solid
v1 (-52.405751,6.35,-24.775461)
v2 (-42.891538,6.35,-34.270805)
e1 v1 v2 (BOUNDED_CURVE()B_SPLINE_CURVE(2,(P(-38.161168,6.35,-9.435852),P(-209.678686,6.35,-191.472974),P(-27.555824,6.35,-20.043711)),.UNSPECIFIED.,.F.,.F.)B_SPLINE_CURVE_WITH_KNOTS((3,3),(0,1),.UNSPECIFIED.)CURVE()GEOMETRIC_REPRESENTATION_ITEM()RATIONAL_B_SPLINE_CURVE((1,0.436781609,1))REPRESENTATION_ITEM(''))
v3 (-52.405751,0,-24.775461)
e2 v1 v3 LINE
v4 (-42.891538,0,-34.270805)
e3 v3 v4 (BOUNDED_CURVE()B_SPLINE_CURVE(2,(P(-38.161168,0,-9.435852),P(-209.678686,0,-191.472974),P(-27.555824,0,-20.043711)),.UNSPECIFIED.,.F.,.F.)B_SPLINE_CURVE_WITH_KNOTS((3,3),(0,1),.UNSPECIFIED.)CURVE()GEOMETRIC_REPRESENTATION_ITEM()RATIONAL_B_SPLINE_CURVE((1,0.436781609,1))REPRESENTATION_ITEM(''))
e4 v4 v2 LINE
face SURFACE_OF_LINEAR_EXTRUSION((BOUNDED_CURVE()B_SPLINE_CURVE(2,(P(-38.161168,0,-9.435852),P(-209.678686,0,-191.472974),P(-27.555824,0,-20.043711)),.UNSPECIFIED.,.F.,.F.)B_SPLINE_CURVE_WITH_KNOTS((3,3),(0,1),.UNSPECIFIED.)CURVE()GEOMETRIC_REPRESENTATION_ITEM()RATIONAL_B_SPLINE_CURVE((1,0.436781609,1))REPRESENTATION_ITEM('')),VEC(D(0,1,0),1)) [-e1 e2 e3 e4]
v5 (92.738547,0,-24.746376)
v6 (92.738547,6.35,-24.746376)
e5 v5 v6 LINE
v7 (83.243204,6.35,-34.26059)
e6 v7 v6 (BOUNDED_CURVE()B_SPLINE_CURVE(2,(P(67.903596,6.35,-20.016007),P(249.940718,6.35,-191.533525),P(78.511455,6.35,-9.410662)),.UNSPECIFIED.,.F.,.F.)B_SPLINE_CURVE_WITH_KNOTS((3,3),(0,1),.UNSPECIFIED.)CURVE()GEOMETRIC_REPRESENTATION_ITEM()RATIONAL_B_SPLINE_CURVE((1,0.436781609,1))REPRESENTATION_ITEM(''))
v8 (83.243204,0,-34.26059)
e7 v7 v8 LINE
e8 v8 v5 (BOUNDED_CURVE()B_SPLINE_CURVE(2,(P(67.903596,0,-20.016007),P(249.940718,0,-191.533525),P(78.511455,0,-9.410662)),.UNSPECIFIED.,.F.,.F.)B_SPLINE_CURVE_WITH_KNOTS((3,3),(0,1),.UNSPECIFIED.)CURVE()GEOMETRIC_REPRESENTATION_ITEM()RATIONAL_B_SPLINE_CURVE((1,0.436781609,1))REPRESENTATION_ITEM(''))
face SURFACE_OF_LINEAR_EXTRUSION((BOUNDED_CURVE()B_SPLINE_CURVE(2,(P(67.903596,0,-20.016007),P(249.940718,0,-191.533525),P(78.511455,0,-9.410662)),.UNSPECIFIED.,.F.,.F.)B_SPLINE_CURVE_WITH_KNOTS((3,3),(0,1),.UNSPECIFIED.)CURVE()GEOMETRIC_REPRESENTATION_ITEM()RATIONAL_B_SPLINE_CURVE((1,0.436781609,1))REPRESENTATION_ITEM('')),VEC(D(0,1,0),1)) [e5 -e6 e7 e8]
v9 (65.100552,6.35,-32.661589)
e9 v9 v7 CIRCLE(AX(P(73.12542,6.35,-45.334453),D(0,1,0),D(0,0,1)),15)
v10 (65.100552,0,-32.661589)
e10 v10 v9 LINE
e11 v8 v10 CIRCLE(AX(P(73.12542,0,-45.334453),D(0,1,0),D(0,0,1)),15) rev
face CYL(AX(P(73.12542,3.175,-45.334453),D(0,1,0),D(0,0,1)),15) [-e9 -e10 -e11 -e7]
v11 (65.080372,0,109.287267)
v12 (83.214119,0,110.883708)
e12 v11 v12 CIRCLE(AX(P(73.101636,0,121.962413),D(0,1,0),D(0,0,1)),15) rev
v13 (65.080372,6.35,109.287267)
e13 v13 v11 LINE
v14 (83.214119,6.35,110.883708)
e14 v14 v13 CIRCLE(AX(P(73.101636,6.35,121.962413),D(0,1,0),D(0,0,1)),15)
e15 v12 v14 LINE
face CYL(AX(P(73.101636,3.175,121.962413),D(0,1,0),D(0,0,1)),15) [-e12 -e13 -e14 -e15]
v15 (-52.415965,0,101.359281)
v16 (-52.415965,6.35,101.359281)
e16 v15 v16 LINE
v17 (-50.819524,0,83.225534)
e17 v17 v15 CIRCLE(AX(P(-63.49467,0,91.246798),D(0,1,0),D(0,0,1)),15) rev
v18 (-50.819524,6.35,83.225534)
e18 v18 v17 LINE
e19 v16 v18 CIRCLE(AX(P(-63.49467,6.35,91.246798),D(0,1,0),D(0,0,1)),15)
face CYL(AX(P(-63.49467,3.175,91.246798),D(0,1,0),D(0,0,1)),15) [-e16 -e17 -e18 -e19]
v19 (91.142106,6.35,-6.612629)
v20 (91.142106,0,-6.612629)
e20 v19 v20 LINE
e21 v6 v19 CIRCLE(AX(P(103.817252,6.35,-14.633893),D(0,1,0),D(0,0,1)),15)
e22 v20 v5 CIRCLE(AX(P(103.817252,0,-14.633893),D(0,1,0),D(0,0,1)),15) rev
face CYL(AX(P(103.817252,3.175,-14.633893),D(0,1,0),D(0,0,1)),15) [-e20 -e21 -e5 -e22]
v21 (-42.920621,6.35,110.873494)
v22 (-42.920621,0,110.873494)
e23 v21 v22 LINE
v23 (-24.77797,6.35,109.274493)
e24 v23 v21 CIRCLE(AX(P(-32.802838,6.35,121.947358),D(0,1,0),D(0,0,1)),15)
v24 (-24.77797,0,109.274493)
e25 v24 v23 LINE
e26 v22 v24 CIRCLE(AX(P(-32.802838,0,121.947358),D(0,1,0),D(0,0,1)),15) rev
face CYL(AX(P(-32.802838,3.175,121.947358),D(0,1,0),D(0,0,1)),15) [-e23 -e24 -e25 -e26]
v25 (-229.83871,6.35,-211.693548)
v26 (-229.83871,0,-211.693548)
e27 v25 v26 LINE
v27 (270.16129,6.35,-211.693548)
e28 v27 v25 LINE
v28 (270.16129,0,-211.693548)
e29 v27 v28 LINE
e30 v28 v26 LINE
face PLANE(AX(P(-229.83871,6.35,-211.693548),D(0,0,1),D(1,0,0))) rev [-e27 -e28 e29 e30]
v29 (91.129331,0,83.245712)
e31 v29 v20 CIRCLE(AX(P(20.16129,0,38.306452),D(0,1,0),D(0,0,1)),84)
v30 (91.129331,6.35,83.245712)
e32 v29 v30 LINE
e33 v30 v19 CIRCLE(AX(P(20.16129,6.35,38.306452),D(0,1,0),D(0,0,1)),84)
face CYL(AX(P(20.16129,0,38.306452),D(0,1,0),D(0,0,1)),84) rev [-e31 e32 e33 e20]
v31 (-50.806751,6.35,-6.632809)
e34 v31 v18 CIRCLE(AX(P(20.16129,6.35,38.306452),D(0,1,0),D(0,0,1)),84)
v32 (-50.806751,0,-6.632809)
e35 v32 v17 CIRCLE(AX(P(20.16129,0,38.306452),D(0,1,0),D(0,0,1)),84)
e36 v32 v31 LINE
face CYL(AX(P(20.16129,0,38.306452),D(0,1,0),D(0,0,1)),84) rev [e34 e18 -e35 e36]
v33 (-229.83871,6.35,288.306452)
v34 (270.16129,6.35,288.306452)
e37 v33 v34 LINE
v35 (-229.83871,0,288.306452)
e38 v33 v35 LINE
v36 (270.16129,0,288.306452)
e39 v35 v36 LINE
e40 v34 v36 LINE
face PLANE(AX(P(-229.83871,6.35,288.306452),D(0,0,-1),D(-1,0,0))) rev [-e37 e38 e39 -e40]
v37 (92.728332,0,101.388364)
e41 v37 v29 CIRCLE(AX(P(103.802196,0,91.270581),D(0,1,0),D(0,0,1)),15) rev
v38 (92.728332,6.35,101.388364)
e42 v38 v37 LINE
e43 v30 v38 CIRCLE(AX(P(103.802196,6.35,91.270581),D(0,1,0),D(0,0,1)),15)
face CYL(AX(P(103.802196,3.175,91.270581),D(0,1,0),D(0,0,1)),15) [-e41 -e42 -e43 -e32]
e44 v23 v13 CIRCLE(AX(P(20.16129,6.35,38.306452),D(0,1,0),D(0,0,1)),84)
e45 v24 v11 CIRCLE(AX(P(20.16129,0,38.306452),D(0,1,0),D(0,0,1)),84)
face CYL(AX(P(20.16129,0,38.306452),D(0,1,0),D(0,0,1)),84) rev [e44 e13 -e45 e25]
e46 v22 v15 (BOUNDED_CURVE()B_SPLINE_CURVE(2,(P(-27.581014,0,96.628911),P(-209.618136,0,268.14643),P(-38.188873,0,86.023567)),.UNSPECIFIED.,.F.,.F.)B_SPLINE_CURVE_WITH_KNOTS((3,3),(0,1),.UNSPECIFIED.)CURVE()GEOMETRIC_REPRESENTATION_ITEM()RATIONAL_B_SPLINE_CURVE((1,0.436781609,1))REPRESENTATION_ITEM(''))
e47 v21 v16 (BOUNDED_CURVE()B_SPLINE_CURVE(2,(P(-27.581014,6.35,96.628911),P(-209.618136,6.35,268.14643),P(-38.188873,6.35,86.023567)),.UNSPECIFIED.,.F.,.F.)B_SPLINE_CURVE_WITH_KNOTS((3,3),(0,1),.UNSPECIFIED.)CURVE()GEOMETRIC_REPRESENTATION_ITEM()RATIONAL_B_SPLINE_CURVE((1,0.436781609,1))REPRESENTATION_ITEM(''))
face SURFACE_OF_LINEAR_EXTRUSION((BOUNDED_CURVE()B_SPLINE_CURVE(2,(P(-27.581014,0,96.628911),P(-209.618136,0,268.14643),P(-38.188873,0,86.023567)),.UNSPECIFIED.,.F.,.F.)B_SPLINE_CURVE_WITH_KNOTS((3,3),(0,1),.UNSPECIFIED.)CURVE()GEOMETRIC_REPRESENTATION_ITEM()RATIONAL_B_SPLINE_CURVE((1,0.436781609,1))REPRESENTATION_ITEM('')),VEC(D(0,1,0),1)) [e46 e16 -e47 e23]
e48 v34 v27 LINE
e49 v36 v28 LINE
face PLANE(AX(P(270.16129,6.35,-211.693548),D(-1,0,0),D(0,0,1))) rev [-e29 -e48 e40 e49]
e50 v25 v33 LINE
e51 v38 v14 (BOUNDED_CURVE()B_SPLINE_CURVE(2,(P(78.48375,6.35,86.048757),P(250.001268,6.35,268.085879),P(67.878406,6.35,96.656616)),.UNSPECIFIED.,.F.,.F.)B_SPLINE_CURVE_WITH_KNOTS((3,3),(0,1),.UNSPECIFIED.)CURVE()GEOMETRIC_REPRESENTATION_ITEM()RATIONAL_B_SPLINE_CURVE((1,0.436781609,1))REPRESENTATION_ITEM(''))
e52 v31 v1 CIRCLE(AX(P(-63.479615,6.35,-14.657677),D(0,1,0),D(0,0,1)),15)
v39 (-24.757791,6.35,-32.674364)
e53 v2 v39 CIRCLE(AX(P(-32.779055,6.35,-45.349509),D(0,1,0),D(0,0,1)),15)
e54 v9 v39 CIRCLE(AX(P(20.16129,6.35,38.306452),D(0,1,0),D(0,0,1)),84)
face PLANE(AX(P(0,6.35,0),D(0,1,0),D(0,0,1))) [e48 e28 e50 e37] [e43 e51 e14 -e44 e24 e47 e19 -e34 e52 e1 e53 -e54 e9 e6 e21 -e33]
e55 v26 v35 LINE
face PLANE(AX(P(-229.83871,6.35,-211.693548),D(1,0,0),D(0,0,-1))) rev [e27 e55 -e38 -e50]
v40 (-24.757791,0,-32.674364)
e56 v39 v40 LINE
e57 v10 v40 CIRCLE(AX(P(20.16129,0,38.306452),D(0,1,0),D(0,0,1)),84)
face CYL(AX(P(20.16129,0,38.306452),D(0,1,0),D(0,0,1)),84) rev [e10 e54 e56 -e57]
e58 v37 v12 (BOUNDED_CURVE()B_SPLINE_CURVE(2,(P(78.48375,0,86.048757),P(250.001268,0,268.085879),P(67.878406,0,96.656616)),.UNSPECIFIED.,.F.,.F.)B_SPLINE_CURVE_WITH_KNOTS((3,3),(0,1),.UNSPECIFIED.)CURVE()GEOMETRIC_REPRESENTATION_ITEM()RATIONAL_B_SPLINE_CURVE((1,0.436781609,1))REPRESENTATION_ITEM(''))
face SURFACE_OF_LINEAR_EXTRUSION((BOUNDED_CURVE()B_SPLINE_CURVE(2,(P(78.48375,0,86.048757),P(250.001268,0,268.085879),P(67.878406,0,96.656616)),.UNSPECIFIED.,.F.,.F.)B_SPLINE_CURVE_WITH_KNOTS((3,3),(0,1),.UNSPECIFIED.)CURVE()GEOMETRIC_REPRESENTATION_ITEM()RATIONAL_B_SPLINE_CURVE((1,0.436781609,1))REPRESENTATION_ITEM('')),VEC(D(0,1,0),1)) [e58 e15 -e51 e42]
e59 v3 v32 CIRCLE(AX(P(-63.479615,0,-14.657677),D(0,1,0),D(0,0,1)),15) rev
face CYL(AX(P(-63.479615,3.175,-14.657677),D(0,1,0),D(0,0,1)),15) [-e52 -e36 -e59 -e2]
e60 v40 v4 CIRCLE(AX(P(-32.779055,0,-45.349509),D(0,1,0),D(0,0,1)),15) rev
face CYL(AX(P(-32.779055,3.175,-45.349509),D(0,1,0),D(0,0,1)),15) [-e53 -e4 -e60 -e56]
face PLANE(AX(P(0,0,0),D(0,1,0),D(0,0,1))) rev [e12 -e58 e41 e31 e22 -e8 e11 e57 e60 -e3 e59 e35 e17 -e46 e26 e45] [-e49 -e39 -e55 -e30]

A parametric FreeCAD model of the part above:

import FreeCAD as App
import Part
import Sketcher
from FreeCAD import Vector
Q = App.Units.Quantity


def edges_at(feature, points):
    """Names of the edges that pass closest to the given points."""
    edges = feature.Shape.Edges
    near = lambda p: min(range(len(edges)), key=lambda i: edges[i].distToShape(Part.Vertex(*p))[0])
    return sorted({f"Edge{near(p) + 1}" for p in points})

doc = App.newDocument("Part")
body = doc.addObject("PartDesign::Body", "Body")

sketch1 = body.newObject("Sketcher::SketchObject", "Sketch")
sketch1.AttachmentSupport = (doc.getObject("XZ_Plane"), [""])
sketch1.MapMode = "FlatFace"
sketch1.addGeometry(Part.LineSegment(Vector(-229.83871, -211.693548, 0), Vector(-229.83871, 288.306452, 0)), False)
sketch1.addGeometry(Part.LineSegment(Vector(-229.83871, 288.306452, 0), Vector(270.16129, 288.306452, 0)), False)
sketch1.addGeometry(Part.LineSegment(Vector(270.16129, 288.306452, 0), Vector(270.16129, -211.693548, 0)), False)
sketch1.addGeometry(Part.LineSegment(Vector(270.16129, -211.693548, 0), Vector(-229.83871, -211.693548, 0)), False)
sketch1.addConstraint(Sketcher.Constraint("Coincident", 0, 2, 1, 1))
sketch1.addConstraint(Sketcher.Constraint("Coincident", 1, 2, 2, 1))
sketch1.addConstraint(Sketcher.Constraint("Coincident", 2, 2, 3, 1))
sketch1.addConstraint(Sketcher.Constraint("Coincident", 3, 2, 0, 1))
sketch1.addConstraint(Sketcher.Constraint("Vertical", 0))
sketch1.addConstraint(Sketcher.Constraint("Horizontal", 1))
sketch1.addConstraint(Sketcher.Constraint("Vertical", 2))
sketch1.addConstraint(Sketcher.Constraint("Horizontal", 3))
sketch1.addConstraint(Sketcher.Constraint("Equal", 3, 0))
sketch1.addConstraint(Sketcher.Constraint("DistanceX", 1, 1, 1, 2, Q("500 mm")))
sketch1.addConstraint(Sketcher.Constraint("DistanceX", 0, 2, -1, 1, Q("229.83871 mm")))
sketch1.addConstraint(Sketcher.Constraint("DistanceY", -1, 1, 0, 2, Q("288.306452 mm")))
pad1 = body.newObject("PartDesign::Pad", "Pad")
pad1.Profile = sketch1
pad1.Length = 6.35
pad1.Reversed = True

sketch2 = body.newObject("Sketcher::SketchObject", "Sketch001")
sketch2.AttachmentSupport = (doc.getObject("XZ_Plane"), [""])
sketch2.MapMode = "FlatFace"
sketch2.AttachmentOffset = App.Placement(Vector(0, 0, -6.35), App.Rotation())
sketch2.addGeometry(Part.Circle(Vector(20.16129, 38.306452, 0), Vector(0, 0, 1), 84), False)
sketch2.addConstraint(Sketcher.Constraint("Diameter", 0, Q("168 mm")))
sketch2.addConstraint(Sketcher.Constraint("DistanceX", -1, 1, 0, 3, Q("20.16129 mm")))
sketch2.addConstraint(Sketcher.Constraint("DistanceY", -1, 1, 0, 3, Q("38.306452 mm")))
pocket1 = body.newObject("PartDesign::Pocket", "Pocket")
pocket1.Profile = sketch2
pocket1.Length = 6.35
pocket1.Reversed = True

sketch3 = body.newObject("Sketcher::SketchObject", "Sketch002")
sketch3.AttachmentSupport = (doc.getObject("XZ_Plane"), [""])
sketch3.MapMode = "FlatFace"
sketch3.AttachmentOffset = App.Placement(Vector(0, 0, -6.35), App.Rotation())
sketch3.addGeometry(Part.LineSegment(Vector(-38.161168, -9.435852, 0), Vector(-27.555824, -20.043711, 0)), False)
sketch3.addGeometry(Part.BSplineCurve([Vector(-38.161168, -9.435852, 0), Vector(-209.678686, -191.472974, 0), Vector(-27.555824, -20.043711, 0)], [3, 3], [0, 1], False, 2, [1, 0.436781609, 1], False), False)
sketch3.addGeometry(Part.LineSegment(Vector(-27.581014, 96.628911, 0), Vector(-38.188873, 86.023567, 0)), False)
sketch3.addGeometry(Part.BSplineCurve([Vector(-27.581014, 96.628911, 0), Vector(-209.618136, 268.14643, 0), Vector(-38.188873, 86.023567, 0)], [3, 3], [0, 1], False, 2, [1, 0.436781609, 1], False), False)
sketch3.addGeometry(Part.LineSegment(Vector(78.48375, 86.048757, 0), Vector(67.878406, 96.656616, 0)), False)
sketch3.addGeometry(Part.BSplineCurve([Vector(78.48375, 86.048757, 0), Vector(250.001268, 268.085879, 0), Vector(67.878406, 96.656616, 0)], [3, 3], [0, 1], False, 2, [1, 0.436781609, 1], False), False)
sketch3.addGeometry(Part.LineSegment(Vector(67.903596, -20.016007, 0), Vector(78.511455, -9.410662, 0)), False)
sketch3.addGeometry(Part.BSplineCurve([Vector(67.903596, -20.016007, 0), Vector(249.940718, -191.533525, 0), Vector(78.511455, -9.410662, 0)], [3, 3], [0, 1], False, 2, [1, 0.436781609, 1], False), False)
sketch3.addConstraint(Sketcher.Constraint("Block", 1))
sketch3.addConstraint(Sketcher.Constraint("Block", 3))
sketch3.addConstraint(Sketcher.Constraint("Block", 5))
sketch3.addConstraint(Sketcher.Constraint("Block", 7))
sketch3.addConstraint(Sketcher.Constraint("Coincident", 0, 1, 1, 1))
sketch3.addConstraint(Sketcher.Constraint("Coincident", 1, 2, 0, 2))
sketch3.addConstraint(Sketcher.Constraint("Coincident", 2, 1, 3, 1))
sketch3.addConstraint(Sketcher.Constraint("Coincident", 3, 2, 2, 2))
sketch3.addConstraint(Sketcher.Constraint("Coincident", 4, 1, 5, 1))
sketch3.addConstraint(Sketcher.Constraint("Coincident", 5, 2, 4, 2))
sketch3.addConstraint(Sketcher.Constraint("Coincident", 6, 1, 7, 1))
sketch3.addConstraint(Sketcher.Constraint("Coincident", 7, 2, 6, 2))
pocket2 = body.newObject("PartDesign::Pocket", "Pocket001")
pocket2.Profile = sketch3
pocket2.Length = 6.35
pocket2.Reversed = True
doc.recompute()

fillet = body.newObject("PartDesign::Fillet", "Fillet")
fillet.Base = (pocket2, edges_at(pocket2, [
    (-33.927, 3.175, 102.575),
    (-44.128, 3.175, 92.37),
    (84.43, 3.175, 92.395),
    (74.224, 3.175, 102.596),
    (-44.107, 3.175, -15.782),
    (-33.902, 3.175, -25.983),
    (74.25, 3.175, -25.962),
    (84.451, 3.175, -15.757),
]))
fillet.Radius = 15

doc.recompute()
